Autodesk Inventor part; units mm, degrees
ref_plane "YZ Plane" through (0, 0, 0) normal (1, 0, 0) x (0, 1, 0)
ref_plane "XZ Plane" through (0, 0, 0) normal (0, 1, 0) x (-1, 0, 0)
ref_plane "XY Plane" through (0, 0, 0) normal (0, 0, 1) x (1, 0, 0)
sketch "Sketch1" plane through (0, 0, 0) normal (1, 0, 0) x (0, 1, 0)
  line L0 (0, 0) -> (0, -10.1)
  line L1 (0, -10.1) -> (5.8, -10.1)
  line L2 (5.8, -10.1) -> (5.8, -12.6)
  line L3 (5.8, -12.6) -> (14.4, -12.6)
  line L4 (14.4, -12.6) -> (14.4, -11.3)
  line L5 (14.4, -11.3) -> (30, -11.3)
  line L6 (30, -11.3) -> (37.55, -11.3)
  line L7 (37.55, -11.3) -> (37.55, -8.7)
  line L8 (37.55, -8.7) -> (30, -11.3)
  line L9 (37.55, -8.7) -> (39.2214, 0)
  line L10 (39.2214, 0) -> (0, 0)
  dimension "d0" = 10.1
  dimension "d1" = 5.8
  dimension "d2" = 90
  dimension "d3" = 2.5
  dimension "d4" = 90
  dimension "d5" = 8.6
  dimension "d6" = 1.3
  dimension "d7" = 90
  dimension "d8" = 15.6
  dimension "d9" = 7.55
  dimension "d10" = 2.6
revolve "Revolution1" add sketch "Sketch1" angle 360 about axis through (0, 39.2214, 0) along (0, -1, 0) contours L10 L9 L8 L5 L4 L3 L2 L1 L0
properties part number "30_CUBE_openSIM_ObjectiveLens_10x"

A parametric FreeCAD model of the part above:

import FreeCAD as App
import Part
import Sketcher


def add_polygon(sketch, points):
    """Adds a closed chain of lines whose ends are joined by coincident constraints."""
    first, n = sketch.GeometryCount, len(points)
    for a, b in zip(points, points[1:] + points[:1]):
        sketch.addGeometry(Part.LineSegment(App.Vector(*a, 0), App.Vector(*b, 0)), False)
    for i in range(n):
        sketch.addConstraint(Sketcher.Constraint("Coincident", first + i, 2, first + (i + 1) % n, 1))

doc = App.newDocument("Part")
body = doc.addObject("PartDesign::Body", "Body")

# Sketch on YZ plane
sketch1 = body.newObject("Sketcher::SketchObject", "Sketch")
sketch1.AttachmentSupport = (doc.getObject("YZ_Plane"), [""])
sketch1.MapMode = "FlatFace"
add_polygon(sketch1, [(39.2, 0), (0, 0), (0, -10.1), (5.8, -10.1), (5.8, -12.6), (14.4, -12.6), (14.4, -11.3), (30, -11.3), (37.5, -8.7)])  # lines 0-8
sketch1.addConstraint([
    Sketcher.Constraint("Horizontal", 0),
    Sketcher.Constraint("Vertical", 1),
    Sketcher.Constraint("Horizontal", 2),
    Sketcher.Constraint("Vertical", 3),
    Sketcher.Constraint("Horizontal", 4),
    Sketcher.Constraint("Vertical", 5),
    Sketcher.Constraint("Horizontal", 6),
    Sketcher.Constraint("Coincident", 0, 2, -1, 1),
    Sketcher.Constraint("DistanceX", 2, 1, 2, 2, 5.8),
    Sketcher.Constraint("DistanceX", 4, 1, 4, 2, 8.6),
    Sketcher.Constraint("DistanceX", 6, 1, 6, 2, 15.6),
    Sketcher.Constraint("DistanceY", 1, 2, 1, 1, 10.1),
    Sketcher.Constraint("DistanceY", 3, 2, 3, 1, 2.5),
    Sketcher.Constraint("DistanceY", 5, 1, 5, 2, 1.3),
    Sketcher.Constraint("DistanceY", 6, 2, 7, 2, 2.6),
    Sketcher.Constraint("DistanceX", 6, 2, 7, 2, 7.55),
    Sketcher.Constraint("Distance", 8, 8.859),
])
revolution = body.newObject("PartDesign::Revolution", "Revolution")
revolution.Profile = sketch1
revolution.ReferenceAxis = (sketch1, ["H_Axis"])
revolution.Angle = 360

doc.recompute()
